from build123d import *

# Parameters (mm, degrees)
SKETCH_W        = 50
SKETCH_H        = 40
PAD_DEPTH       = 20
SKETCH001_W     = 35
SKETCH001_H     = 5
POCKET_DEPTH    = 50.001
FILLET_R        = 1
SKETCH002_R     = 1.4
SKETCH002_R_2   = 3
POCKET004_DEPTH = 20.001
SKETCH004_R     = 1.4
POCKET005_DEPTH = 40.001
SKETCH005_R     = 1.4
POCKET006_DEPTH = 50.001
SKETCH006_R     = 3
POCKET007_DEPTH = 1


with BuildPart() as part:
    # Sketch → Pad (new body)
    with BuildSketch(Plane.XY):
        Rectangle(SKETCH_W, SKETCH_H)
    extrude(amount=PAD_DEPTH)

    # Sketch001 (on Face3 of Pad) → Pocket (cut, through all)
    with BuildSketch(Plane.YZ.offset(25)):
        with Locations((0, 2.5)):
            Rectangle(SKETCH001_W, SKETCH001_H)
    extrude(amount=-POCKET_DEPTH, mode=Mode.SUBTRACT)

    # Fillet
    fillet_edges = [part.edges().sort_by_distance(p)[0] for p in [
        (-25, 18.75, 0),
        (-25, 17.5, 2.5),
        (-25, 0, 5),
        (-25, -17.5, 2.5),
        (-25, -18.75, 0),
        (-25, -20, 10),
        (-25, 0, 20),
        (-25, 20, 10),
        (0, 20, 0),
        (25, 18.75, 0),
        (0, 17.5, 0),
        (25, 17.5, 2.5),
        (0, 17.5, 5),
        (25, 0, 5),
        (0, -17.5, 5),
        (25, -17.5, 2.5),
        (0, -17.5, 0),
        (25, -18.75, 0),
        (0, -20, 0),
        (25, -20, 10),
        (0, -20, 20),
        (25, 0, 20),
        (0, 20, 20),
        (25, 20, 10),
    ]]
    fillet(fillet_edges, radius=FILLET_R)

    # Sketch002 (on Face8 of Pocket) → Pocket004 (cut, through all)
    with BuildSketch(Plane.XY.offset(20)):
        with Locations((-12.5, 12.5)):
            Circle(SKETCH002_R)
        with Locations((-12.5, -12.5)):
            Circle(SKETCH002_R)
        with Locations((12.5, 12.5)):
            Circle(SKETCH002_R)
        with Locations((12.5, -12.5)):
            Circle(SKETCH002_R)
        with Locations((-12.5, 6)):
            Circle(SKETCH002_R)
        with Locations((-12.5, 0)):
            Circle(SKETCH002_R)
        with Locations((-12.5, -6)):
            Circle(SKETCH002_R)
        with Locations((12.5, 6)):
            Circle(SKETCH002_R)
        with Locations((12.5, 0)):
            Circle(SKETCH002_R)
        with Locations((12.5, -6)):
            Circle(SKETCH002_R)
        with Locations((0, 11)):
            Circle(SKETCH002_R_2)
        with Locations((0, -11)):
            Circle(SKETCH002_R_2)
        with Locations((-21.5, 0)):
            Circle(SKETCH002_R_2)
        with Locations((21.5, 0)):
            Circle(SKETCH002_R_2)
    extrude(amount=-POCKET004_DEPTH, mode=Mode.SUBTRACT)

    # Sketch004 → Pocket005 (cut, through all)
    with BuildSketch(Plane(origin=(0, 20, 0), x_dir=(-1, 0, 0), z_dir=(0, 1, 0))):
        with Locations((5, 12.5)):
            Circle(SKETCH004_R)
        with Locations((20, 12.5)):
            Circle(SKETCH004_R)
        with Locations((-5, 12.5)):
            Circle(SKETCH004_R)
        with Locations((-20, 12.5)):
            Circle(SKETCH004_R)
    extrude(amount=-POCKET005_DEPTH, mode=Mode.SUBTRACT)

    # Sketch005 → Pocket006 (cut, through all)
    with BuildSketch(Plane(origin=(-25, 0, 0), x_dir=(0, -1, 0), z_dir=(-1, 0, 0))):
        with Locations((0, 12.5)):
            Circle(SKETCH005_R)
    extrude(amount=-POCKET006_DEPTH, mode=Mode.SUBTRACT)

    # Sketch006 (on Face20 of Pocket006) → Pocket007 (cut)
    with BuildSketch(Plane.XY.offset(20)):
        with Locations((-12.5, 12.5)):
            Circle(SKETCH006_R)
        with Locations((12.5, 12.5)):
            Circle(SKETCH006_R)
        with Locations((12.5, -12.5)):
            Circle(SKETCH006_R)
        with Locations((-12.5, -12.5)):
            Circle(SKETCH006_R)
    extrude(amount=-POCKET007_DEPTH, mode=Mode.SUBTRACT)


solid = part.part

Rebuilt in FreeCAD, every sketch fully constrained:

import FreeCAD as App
import Part
import Sketcher

V = App.Vector


def add_polygon(sketch, points):
    """Adds a closed chain of lines whose ends are joined by coincident constraints."""
    first, n = sketch.GeometryCount, len(points)
    for a, b in zip(points, points[1:] + points[:1]):
        sketch.addGeometry(Part.LineSegment(App.Vector(*a, 0), App.Vector(*b, 0)), False)
    for i in range(n):
        sketch.addConstraint(Sketcher.Constraint("Coincident", first + i, 2, first + (i + 1) % n, 1))

doc = App.newDocument("Part")
params = doc.addObject("Spreadsheet::Sheet", "Params")
for row, (alias, value) in enumerate([
    ("sketch1_width", "50 mm"),
    ("sketch1_height", "40 mm"),
    ("pad1_length", "20 mm"),
    ("sketch2_width", "35 mm"),
    ("sketch2_height", "5 mm"),
    ("fillet_radius", "1 mm"),
    ("sketch3_diameter", "6 mm"),
    ("sketch3_diameter2", "2.8 mm"),
    ("sketch4_diameter", "2.8 mm"),
    ("sketch5_diameter", "2.8 mm"),
    ("sketch6_diameter", "6 mm"),
    ("pocket5_length", "1 mm"),
], start=1):
    params.set(f"A{row}", alias)
    params.set(f"B{row}", "=" + value)
    params.setAlias(f"B{row}", alias)

body = doc.addObject("PartDesign::Body", "Body")

sketch1 = body.newObject("Sketcher::SketchObject", "Sketch")
sketch1.AttachmentSupport = (doc.getObject("XY_Plane"), [""])
sketch1.MapMode = "FlatFace"
add_polygon(sketch1, [(-25, 20), (-25, -20), (25, -20), (25, 20)])
sketch1.addConstraint([
    Sketcher.Constraint("Vertical", 0),
    Sketcher.Constraint("Horizontal", 1),
    Sketcher.Constraint("Vertical", 2),
    Sketcher.Constraint("Horizontal", 3),
    Sketcher.Constraint("Symmetric", 0, 2, 2, 2, -1, 1),
    Sketcher.Constraint("DistanceX", 1, 1, 1, 2, 50.0),
    Sketcher.Constraint("DistanceY", 0, 2, 0, 1, 40.0),
])
sketch1.setExpression("Constraints[9]", "Params.sketch1_width")
sketch1.setExpression("Constraints[10]", "Params.sketch1_height")
pad1 = body.newObject("PartDesign::Pad", "Pad")
pad1.Profile = sketch1
pad1.setExpression("Length", "Params.pad1_length")

sketch2 = body.newObject("Sketcher::SketchObject", "Sketch001")
sketch2.AttachmentSupport = (doc.getObject("YZ_Plane"), [""])
sketch2.MapMode = "FlatFace"
sketch2.AttachmentOffset = App.Placement(V(0, 0, 25), App.Rotation())
add_polygon(sketch2, [(-17.5, 5), (-17.5, 0), (17.5, 0), (17.5, 5)])
sketch2.addConstraint([
    Sketcher.Constraint("Vertical", 0),
    Sketcher.Constraint("Horizontal", 1),
    Sketcher.Constraint("Vertical", 2),
    Sketcher.Constraint("Horizontal", 3),
    Sketcher.Constraint("Symmetric", 0, 2, 1, 2, -1, 1),
    Sketcher.Constraint("DistanceX", 1, 1, 1, 2, 35.0),
    Sketcher.Constraint("DistanceY", 0, 2, 0, 1, 5.0),
])
sketch2.setExpression("Constraints[9]", "Params.sketch2_width")
sketch2.setExpression("Constraints[10]", "Params.sketch2_height")
pocket1 = body.newObject("PartDesign::Pocket", "Pocket")
pocket1.Profile = sketch2
pocket1.Type = "ThroughAll"
doc.recompute()

fillet = body.newObject("PartDesign::Fillet", "Fillet")
fillet.Base = (pocket1, ["Edge1"])
fillet.UseAllEdges = True
fillet.setExpression("Radius", "Params.fillet_radius")

sketch3 = body.newObject("Sketcher::SketchObject", "Sketch002")
sketch3.AttachmentSupport = (doc.getObject("XY_Plane"), [""])
sketch3.MapMode = "FlatFace"
sketch3.AttachmentOffset = App.Placement(V(0, 0, 20), App.Rotation())
sketch3.addGeometry([
    Part.Circle(V(-12.5, 12.5, 0), V(0, 0, 1), 1.4),
    Part.Circle(V(-12.5, -12.5, 0), V(0, 0, 1), 1.4),
    Part.Circle(V(12.5, 12.5, 0), V(0, 0, 1), 1.4),
    Part.Circle(V(12.5, -12.5, 0), V(0, 0, 1), 1.4),
    Part.Circle(V(-12.5, 6, 0), V(0, 0, 1), 1.4),
    Part.Circle(V(-12.5, 0, 0), V(0, 0, 1), 1.4),
    Part.Circle(V(-12.5, -6, 0), V(0, 0, 1), 1.4),
    Part.Circle(V(12.5, 6, 0), V(0, 0, 1), 1.4),
    Part.Circle(V(12.5, 0, 0), V(0, 0, 1), 1.4),
    Part.Circle(V(12.5, -6, 0), V(0, 0, 1), 1.4),
    Part.Circle(V(0, 11, 0), V(0, 0, 1), 3),
    Part.Circle(V(0, -11, 0), V(0, 0, 1), 3),
    Part.Circle(V(-21.5, 0, 0), V(0, 0, 1), 3),
    Part.Circle(V(21.5, 0, 0), V(0, 0, 1), 3),
], False)
sketch3.addConstraint([
    Sketcher.Constraint("Equal", 0, 1),
    Sketcher.Constraint("Equal", 1, 2),
    Sketcher.Constraint("Equal", 2, 3),
    Sketcher.Constraint("Equal", 3, 4),
    Sketcher.Constraint("Equal", 4, 5),
    Sketcher.Constraint("Equal", 5, 6),
    Sketcher.Constraint("Equal", 6, 7),
    Sketcher.Constraint("Equal", 7, 8),
    Sketcher.Constraint("Equal", 8, 9),
    Sketcher.Constraint("Equal", 10, 11),
    Sketcher.Constraint("Equal", 11, 12),
    Sketcher.Constraint("Equal", 12, 13),
    Sketcher.Constraint("Symmetric", 1, 3, 2, 3, -1, 1),
    Sketcher.Constraint("Symmetric", 0, 3, 3, 3, -1, 1),
    Sketcher.Constraint("Symmetric", 6, 3, 7, 3, -1, 1),
    Sketcher.Constraint("Symmetric", 5, 3, 8, 3, -1, 1),
    Sketcher.Constraint("Symmetric", 4, 3, 9, 3, -1, 1),
    Sketcher.Constraint("Symmetric", 10, 3, 11, 3, -1, 1),
    Sketcher.Constraint("Symmetric", 12, 3, 13, 3, -1, 1),
    Sketcher.Constraint("Symmetric", 0, 3, 2, 3, -2),
    Sketcher.Constraint("Symmetric", 4, 3, 7, 3, -2),
    Sketcher.Constraint("PointOnObject", 5, 3, -1),
    Sketcher.Constraint("PointOnObject", 10, 3, -2),
    Sketcher.Constraint("PointOnObject", 12, 3, -1),
    Sketcher.Constraint("Vertical", 1, 3, 4, 3),
    Sketcher.Constraint("Vertical", 4, 3, 5, 3),
    Sketcher.Constraint("Diameter", 10, 6.0),
    Sketcher.Constraint("Diameter", 0, 2.8),
    Sketcher.Constraint("DistanceY", -1, 1, 4, 3, 6.0),
    Sketcher.Constraint("DistanceY", -1, 1, 10, 3, 11.0),
    Sketcher.Constraint("DistanceY", 1, 3, 0, 3, 25.0),
    Sketcher.Constraint("DistanceX", 0, 3, 2, 3, 25.0),
    Sketcher.Constraint("DistanceX", 12, 3, 5, 3, 9.0),
])
sketch3.setExpression("Constraints[26]", "Params.sketch3_diameter")
sketch3.setExpression("Constraints[27]", "Params.sketch3_diameter2")
pocket2 = body.newObject("PartDesign::Pocket", "Pocket001")
pocket2.Profile = sketch3
pocket2.Type = "ThroughAll"

sketch4 = body.newObject("Sketcher::SketchObject", "Sketch003")
sketch4.AttachmentSupport = (doc.getObject("XZ_Plane"), [""])
sketch4.MapMode = "FlatFace"
sketch4.AttachmentOffset = App.Placement(V(0, 0, -20), App.Rotation())
sketch4.addGeometry([
    Part.Circle(V(-5, 12.5, 0), V(0, 0, 1), 1.4),
    Part.Circle(V(-20, 12.5, 0), V(0, 0, 1), 1.4),
    Part.Circle(V(5, 12.5, 0), V(0, 0, 1), 1.4),
    Part.Circle(V(20, 12.5, 0), V(0, 0, 1), 1.4),
], False)
sketch4.addConstraint([
    Sketcher.Constraint("Equal", 0, 1),
    Sketcher.Constraint("Equal", 1, 2),
    Sketcher.Constraint("Equal", 2, 3),
    Sketcher.Constraint("Symmetric", 0, 3, 2, 3, -2),
    Sketcher.Constraint("Symmetric", 1, 3, 3, 3, -2),
    Sketcher.Constraint("Horizontal", 0, 3, 1, 3),
    Sketcher.Constraint("Diameter", 0, 2.8),
    Sketcher.Constraint("DistanceX", 0, 3, -1, 1, 5.0),
    Sketcher.Constraint("DistanceX", 1, 3, -1, 1, 20.0),
    Sketcher.Constraint("DistanceY", -1, 1, 0, 3, 12.5),
])
sketch4.setExpression("Constraints[6]", "Params.sketch4_diameter")
pocket3 = body.newObject("PartDesign::Pocket", "Pocket002")
pocket3.Profile = sketch4
pocket3.Type = "ThroughAll"
pocket3.Reversed = True

sketch5 = body.newObject("Sketcher::SketchObject", "Sketch004")
sketch5.AttachmentSupport = (doc.getObject("YZ_Plane"), [""])
sketch5.MapMode = "FlatFace"
sketch5.AttachmentOffset = App.Placement(V(0, 0, -25), App.Rotation())
sketch5.addGeometry(Part.Circle(V(0, 12.5, 0), V(0, 0, 1), 1.4), False)
sketch5.addConstraint([
    Sketcher.Constraint("PointOnObject", 0, 3, -2),
    Sketcher.Constraint("Diameter", 0, 2.8),
    Sketcher.Constraint("DistanceY", -1, 1, 0, 3, 12.5),
])
sketch5.setExpression("Constraints[1]", "Params.sketch5_diameter")
pocket4 = body.newObject("PartDesign::Pocket", "Pocket003")
pocket4.Profile = sketch5
pocket4.Type = "ThroughAll"
pocket4.Reversed = True

sketch6 = body.newObject("Sketcher::SketchObject", "Sketch005")
sketch6.AttachmentSupport = (doc.getObject("XY_Plane"), [""])
sketch6.MapMode = "FlatFace"
sketch6.AttachmentOffset = App.Placement(V(0, 0, 20), App.Rotation())
sketch6.addGeometry([
    Part.Circle(V(-12.5, 12.5, 0), V(0, 0, 1), 3),
    Part.Circle(V(12.5, 12.5, 0), V(0, 0, 1), 3),
    Part.Circle(V(12.5, -12.5, 0), V(0, 0, 1), 3),
    Part.Circle(V(-12.5, -12.5, 0), V(0, 0, 1), 3),
], False)
sketch6.addConstraint([
    Sketcher.Constraint("Equal", 0, 1),
    Sketcher.Constraint("Equal", 1, 2),
    Sketcher.Constraint("Equal", 2, 3),
    Sketcher.Constraint("Symmetric", 0, 3, 2, 3, -1, 1),
    Sketcher.Constraint("Symmetric", 1, 3, 3, 3, -1, 1),
    Sketcher.Constraint("Symmetric", 0, 3, 1, 3, -2),
    Sketcher.Constraint("Diameter", 0, 6.0),
    Sketcher.Constraint("DistanceX", 0, 3, 1, 3, 25.0),
    Sketcher.Constraint("DistanceY", 2, 3, 1, 3, 25.0),
])
sketch6.setExpression("Constraints[6]", "Params.sketch6_diameter")
pocket5 = body.newObject("PartDesign::Pocket", "Pocket004")
pocket5.Profile = sketch6
pocket5.setExpression("Length", "Params.pocket5_length")

doc.recompute()
